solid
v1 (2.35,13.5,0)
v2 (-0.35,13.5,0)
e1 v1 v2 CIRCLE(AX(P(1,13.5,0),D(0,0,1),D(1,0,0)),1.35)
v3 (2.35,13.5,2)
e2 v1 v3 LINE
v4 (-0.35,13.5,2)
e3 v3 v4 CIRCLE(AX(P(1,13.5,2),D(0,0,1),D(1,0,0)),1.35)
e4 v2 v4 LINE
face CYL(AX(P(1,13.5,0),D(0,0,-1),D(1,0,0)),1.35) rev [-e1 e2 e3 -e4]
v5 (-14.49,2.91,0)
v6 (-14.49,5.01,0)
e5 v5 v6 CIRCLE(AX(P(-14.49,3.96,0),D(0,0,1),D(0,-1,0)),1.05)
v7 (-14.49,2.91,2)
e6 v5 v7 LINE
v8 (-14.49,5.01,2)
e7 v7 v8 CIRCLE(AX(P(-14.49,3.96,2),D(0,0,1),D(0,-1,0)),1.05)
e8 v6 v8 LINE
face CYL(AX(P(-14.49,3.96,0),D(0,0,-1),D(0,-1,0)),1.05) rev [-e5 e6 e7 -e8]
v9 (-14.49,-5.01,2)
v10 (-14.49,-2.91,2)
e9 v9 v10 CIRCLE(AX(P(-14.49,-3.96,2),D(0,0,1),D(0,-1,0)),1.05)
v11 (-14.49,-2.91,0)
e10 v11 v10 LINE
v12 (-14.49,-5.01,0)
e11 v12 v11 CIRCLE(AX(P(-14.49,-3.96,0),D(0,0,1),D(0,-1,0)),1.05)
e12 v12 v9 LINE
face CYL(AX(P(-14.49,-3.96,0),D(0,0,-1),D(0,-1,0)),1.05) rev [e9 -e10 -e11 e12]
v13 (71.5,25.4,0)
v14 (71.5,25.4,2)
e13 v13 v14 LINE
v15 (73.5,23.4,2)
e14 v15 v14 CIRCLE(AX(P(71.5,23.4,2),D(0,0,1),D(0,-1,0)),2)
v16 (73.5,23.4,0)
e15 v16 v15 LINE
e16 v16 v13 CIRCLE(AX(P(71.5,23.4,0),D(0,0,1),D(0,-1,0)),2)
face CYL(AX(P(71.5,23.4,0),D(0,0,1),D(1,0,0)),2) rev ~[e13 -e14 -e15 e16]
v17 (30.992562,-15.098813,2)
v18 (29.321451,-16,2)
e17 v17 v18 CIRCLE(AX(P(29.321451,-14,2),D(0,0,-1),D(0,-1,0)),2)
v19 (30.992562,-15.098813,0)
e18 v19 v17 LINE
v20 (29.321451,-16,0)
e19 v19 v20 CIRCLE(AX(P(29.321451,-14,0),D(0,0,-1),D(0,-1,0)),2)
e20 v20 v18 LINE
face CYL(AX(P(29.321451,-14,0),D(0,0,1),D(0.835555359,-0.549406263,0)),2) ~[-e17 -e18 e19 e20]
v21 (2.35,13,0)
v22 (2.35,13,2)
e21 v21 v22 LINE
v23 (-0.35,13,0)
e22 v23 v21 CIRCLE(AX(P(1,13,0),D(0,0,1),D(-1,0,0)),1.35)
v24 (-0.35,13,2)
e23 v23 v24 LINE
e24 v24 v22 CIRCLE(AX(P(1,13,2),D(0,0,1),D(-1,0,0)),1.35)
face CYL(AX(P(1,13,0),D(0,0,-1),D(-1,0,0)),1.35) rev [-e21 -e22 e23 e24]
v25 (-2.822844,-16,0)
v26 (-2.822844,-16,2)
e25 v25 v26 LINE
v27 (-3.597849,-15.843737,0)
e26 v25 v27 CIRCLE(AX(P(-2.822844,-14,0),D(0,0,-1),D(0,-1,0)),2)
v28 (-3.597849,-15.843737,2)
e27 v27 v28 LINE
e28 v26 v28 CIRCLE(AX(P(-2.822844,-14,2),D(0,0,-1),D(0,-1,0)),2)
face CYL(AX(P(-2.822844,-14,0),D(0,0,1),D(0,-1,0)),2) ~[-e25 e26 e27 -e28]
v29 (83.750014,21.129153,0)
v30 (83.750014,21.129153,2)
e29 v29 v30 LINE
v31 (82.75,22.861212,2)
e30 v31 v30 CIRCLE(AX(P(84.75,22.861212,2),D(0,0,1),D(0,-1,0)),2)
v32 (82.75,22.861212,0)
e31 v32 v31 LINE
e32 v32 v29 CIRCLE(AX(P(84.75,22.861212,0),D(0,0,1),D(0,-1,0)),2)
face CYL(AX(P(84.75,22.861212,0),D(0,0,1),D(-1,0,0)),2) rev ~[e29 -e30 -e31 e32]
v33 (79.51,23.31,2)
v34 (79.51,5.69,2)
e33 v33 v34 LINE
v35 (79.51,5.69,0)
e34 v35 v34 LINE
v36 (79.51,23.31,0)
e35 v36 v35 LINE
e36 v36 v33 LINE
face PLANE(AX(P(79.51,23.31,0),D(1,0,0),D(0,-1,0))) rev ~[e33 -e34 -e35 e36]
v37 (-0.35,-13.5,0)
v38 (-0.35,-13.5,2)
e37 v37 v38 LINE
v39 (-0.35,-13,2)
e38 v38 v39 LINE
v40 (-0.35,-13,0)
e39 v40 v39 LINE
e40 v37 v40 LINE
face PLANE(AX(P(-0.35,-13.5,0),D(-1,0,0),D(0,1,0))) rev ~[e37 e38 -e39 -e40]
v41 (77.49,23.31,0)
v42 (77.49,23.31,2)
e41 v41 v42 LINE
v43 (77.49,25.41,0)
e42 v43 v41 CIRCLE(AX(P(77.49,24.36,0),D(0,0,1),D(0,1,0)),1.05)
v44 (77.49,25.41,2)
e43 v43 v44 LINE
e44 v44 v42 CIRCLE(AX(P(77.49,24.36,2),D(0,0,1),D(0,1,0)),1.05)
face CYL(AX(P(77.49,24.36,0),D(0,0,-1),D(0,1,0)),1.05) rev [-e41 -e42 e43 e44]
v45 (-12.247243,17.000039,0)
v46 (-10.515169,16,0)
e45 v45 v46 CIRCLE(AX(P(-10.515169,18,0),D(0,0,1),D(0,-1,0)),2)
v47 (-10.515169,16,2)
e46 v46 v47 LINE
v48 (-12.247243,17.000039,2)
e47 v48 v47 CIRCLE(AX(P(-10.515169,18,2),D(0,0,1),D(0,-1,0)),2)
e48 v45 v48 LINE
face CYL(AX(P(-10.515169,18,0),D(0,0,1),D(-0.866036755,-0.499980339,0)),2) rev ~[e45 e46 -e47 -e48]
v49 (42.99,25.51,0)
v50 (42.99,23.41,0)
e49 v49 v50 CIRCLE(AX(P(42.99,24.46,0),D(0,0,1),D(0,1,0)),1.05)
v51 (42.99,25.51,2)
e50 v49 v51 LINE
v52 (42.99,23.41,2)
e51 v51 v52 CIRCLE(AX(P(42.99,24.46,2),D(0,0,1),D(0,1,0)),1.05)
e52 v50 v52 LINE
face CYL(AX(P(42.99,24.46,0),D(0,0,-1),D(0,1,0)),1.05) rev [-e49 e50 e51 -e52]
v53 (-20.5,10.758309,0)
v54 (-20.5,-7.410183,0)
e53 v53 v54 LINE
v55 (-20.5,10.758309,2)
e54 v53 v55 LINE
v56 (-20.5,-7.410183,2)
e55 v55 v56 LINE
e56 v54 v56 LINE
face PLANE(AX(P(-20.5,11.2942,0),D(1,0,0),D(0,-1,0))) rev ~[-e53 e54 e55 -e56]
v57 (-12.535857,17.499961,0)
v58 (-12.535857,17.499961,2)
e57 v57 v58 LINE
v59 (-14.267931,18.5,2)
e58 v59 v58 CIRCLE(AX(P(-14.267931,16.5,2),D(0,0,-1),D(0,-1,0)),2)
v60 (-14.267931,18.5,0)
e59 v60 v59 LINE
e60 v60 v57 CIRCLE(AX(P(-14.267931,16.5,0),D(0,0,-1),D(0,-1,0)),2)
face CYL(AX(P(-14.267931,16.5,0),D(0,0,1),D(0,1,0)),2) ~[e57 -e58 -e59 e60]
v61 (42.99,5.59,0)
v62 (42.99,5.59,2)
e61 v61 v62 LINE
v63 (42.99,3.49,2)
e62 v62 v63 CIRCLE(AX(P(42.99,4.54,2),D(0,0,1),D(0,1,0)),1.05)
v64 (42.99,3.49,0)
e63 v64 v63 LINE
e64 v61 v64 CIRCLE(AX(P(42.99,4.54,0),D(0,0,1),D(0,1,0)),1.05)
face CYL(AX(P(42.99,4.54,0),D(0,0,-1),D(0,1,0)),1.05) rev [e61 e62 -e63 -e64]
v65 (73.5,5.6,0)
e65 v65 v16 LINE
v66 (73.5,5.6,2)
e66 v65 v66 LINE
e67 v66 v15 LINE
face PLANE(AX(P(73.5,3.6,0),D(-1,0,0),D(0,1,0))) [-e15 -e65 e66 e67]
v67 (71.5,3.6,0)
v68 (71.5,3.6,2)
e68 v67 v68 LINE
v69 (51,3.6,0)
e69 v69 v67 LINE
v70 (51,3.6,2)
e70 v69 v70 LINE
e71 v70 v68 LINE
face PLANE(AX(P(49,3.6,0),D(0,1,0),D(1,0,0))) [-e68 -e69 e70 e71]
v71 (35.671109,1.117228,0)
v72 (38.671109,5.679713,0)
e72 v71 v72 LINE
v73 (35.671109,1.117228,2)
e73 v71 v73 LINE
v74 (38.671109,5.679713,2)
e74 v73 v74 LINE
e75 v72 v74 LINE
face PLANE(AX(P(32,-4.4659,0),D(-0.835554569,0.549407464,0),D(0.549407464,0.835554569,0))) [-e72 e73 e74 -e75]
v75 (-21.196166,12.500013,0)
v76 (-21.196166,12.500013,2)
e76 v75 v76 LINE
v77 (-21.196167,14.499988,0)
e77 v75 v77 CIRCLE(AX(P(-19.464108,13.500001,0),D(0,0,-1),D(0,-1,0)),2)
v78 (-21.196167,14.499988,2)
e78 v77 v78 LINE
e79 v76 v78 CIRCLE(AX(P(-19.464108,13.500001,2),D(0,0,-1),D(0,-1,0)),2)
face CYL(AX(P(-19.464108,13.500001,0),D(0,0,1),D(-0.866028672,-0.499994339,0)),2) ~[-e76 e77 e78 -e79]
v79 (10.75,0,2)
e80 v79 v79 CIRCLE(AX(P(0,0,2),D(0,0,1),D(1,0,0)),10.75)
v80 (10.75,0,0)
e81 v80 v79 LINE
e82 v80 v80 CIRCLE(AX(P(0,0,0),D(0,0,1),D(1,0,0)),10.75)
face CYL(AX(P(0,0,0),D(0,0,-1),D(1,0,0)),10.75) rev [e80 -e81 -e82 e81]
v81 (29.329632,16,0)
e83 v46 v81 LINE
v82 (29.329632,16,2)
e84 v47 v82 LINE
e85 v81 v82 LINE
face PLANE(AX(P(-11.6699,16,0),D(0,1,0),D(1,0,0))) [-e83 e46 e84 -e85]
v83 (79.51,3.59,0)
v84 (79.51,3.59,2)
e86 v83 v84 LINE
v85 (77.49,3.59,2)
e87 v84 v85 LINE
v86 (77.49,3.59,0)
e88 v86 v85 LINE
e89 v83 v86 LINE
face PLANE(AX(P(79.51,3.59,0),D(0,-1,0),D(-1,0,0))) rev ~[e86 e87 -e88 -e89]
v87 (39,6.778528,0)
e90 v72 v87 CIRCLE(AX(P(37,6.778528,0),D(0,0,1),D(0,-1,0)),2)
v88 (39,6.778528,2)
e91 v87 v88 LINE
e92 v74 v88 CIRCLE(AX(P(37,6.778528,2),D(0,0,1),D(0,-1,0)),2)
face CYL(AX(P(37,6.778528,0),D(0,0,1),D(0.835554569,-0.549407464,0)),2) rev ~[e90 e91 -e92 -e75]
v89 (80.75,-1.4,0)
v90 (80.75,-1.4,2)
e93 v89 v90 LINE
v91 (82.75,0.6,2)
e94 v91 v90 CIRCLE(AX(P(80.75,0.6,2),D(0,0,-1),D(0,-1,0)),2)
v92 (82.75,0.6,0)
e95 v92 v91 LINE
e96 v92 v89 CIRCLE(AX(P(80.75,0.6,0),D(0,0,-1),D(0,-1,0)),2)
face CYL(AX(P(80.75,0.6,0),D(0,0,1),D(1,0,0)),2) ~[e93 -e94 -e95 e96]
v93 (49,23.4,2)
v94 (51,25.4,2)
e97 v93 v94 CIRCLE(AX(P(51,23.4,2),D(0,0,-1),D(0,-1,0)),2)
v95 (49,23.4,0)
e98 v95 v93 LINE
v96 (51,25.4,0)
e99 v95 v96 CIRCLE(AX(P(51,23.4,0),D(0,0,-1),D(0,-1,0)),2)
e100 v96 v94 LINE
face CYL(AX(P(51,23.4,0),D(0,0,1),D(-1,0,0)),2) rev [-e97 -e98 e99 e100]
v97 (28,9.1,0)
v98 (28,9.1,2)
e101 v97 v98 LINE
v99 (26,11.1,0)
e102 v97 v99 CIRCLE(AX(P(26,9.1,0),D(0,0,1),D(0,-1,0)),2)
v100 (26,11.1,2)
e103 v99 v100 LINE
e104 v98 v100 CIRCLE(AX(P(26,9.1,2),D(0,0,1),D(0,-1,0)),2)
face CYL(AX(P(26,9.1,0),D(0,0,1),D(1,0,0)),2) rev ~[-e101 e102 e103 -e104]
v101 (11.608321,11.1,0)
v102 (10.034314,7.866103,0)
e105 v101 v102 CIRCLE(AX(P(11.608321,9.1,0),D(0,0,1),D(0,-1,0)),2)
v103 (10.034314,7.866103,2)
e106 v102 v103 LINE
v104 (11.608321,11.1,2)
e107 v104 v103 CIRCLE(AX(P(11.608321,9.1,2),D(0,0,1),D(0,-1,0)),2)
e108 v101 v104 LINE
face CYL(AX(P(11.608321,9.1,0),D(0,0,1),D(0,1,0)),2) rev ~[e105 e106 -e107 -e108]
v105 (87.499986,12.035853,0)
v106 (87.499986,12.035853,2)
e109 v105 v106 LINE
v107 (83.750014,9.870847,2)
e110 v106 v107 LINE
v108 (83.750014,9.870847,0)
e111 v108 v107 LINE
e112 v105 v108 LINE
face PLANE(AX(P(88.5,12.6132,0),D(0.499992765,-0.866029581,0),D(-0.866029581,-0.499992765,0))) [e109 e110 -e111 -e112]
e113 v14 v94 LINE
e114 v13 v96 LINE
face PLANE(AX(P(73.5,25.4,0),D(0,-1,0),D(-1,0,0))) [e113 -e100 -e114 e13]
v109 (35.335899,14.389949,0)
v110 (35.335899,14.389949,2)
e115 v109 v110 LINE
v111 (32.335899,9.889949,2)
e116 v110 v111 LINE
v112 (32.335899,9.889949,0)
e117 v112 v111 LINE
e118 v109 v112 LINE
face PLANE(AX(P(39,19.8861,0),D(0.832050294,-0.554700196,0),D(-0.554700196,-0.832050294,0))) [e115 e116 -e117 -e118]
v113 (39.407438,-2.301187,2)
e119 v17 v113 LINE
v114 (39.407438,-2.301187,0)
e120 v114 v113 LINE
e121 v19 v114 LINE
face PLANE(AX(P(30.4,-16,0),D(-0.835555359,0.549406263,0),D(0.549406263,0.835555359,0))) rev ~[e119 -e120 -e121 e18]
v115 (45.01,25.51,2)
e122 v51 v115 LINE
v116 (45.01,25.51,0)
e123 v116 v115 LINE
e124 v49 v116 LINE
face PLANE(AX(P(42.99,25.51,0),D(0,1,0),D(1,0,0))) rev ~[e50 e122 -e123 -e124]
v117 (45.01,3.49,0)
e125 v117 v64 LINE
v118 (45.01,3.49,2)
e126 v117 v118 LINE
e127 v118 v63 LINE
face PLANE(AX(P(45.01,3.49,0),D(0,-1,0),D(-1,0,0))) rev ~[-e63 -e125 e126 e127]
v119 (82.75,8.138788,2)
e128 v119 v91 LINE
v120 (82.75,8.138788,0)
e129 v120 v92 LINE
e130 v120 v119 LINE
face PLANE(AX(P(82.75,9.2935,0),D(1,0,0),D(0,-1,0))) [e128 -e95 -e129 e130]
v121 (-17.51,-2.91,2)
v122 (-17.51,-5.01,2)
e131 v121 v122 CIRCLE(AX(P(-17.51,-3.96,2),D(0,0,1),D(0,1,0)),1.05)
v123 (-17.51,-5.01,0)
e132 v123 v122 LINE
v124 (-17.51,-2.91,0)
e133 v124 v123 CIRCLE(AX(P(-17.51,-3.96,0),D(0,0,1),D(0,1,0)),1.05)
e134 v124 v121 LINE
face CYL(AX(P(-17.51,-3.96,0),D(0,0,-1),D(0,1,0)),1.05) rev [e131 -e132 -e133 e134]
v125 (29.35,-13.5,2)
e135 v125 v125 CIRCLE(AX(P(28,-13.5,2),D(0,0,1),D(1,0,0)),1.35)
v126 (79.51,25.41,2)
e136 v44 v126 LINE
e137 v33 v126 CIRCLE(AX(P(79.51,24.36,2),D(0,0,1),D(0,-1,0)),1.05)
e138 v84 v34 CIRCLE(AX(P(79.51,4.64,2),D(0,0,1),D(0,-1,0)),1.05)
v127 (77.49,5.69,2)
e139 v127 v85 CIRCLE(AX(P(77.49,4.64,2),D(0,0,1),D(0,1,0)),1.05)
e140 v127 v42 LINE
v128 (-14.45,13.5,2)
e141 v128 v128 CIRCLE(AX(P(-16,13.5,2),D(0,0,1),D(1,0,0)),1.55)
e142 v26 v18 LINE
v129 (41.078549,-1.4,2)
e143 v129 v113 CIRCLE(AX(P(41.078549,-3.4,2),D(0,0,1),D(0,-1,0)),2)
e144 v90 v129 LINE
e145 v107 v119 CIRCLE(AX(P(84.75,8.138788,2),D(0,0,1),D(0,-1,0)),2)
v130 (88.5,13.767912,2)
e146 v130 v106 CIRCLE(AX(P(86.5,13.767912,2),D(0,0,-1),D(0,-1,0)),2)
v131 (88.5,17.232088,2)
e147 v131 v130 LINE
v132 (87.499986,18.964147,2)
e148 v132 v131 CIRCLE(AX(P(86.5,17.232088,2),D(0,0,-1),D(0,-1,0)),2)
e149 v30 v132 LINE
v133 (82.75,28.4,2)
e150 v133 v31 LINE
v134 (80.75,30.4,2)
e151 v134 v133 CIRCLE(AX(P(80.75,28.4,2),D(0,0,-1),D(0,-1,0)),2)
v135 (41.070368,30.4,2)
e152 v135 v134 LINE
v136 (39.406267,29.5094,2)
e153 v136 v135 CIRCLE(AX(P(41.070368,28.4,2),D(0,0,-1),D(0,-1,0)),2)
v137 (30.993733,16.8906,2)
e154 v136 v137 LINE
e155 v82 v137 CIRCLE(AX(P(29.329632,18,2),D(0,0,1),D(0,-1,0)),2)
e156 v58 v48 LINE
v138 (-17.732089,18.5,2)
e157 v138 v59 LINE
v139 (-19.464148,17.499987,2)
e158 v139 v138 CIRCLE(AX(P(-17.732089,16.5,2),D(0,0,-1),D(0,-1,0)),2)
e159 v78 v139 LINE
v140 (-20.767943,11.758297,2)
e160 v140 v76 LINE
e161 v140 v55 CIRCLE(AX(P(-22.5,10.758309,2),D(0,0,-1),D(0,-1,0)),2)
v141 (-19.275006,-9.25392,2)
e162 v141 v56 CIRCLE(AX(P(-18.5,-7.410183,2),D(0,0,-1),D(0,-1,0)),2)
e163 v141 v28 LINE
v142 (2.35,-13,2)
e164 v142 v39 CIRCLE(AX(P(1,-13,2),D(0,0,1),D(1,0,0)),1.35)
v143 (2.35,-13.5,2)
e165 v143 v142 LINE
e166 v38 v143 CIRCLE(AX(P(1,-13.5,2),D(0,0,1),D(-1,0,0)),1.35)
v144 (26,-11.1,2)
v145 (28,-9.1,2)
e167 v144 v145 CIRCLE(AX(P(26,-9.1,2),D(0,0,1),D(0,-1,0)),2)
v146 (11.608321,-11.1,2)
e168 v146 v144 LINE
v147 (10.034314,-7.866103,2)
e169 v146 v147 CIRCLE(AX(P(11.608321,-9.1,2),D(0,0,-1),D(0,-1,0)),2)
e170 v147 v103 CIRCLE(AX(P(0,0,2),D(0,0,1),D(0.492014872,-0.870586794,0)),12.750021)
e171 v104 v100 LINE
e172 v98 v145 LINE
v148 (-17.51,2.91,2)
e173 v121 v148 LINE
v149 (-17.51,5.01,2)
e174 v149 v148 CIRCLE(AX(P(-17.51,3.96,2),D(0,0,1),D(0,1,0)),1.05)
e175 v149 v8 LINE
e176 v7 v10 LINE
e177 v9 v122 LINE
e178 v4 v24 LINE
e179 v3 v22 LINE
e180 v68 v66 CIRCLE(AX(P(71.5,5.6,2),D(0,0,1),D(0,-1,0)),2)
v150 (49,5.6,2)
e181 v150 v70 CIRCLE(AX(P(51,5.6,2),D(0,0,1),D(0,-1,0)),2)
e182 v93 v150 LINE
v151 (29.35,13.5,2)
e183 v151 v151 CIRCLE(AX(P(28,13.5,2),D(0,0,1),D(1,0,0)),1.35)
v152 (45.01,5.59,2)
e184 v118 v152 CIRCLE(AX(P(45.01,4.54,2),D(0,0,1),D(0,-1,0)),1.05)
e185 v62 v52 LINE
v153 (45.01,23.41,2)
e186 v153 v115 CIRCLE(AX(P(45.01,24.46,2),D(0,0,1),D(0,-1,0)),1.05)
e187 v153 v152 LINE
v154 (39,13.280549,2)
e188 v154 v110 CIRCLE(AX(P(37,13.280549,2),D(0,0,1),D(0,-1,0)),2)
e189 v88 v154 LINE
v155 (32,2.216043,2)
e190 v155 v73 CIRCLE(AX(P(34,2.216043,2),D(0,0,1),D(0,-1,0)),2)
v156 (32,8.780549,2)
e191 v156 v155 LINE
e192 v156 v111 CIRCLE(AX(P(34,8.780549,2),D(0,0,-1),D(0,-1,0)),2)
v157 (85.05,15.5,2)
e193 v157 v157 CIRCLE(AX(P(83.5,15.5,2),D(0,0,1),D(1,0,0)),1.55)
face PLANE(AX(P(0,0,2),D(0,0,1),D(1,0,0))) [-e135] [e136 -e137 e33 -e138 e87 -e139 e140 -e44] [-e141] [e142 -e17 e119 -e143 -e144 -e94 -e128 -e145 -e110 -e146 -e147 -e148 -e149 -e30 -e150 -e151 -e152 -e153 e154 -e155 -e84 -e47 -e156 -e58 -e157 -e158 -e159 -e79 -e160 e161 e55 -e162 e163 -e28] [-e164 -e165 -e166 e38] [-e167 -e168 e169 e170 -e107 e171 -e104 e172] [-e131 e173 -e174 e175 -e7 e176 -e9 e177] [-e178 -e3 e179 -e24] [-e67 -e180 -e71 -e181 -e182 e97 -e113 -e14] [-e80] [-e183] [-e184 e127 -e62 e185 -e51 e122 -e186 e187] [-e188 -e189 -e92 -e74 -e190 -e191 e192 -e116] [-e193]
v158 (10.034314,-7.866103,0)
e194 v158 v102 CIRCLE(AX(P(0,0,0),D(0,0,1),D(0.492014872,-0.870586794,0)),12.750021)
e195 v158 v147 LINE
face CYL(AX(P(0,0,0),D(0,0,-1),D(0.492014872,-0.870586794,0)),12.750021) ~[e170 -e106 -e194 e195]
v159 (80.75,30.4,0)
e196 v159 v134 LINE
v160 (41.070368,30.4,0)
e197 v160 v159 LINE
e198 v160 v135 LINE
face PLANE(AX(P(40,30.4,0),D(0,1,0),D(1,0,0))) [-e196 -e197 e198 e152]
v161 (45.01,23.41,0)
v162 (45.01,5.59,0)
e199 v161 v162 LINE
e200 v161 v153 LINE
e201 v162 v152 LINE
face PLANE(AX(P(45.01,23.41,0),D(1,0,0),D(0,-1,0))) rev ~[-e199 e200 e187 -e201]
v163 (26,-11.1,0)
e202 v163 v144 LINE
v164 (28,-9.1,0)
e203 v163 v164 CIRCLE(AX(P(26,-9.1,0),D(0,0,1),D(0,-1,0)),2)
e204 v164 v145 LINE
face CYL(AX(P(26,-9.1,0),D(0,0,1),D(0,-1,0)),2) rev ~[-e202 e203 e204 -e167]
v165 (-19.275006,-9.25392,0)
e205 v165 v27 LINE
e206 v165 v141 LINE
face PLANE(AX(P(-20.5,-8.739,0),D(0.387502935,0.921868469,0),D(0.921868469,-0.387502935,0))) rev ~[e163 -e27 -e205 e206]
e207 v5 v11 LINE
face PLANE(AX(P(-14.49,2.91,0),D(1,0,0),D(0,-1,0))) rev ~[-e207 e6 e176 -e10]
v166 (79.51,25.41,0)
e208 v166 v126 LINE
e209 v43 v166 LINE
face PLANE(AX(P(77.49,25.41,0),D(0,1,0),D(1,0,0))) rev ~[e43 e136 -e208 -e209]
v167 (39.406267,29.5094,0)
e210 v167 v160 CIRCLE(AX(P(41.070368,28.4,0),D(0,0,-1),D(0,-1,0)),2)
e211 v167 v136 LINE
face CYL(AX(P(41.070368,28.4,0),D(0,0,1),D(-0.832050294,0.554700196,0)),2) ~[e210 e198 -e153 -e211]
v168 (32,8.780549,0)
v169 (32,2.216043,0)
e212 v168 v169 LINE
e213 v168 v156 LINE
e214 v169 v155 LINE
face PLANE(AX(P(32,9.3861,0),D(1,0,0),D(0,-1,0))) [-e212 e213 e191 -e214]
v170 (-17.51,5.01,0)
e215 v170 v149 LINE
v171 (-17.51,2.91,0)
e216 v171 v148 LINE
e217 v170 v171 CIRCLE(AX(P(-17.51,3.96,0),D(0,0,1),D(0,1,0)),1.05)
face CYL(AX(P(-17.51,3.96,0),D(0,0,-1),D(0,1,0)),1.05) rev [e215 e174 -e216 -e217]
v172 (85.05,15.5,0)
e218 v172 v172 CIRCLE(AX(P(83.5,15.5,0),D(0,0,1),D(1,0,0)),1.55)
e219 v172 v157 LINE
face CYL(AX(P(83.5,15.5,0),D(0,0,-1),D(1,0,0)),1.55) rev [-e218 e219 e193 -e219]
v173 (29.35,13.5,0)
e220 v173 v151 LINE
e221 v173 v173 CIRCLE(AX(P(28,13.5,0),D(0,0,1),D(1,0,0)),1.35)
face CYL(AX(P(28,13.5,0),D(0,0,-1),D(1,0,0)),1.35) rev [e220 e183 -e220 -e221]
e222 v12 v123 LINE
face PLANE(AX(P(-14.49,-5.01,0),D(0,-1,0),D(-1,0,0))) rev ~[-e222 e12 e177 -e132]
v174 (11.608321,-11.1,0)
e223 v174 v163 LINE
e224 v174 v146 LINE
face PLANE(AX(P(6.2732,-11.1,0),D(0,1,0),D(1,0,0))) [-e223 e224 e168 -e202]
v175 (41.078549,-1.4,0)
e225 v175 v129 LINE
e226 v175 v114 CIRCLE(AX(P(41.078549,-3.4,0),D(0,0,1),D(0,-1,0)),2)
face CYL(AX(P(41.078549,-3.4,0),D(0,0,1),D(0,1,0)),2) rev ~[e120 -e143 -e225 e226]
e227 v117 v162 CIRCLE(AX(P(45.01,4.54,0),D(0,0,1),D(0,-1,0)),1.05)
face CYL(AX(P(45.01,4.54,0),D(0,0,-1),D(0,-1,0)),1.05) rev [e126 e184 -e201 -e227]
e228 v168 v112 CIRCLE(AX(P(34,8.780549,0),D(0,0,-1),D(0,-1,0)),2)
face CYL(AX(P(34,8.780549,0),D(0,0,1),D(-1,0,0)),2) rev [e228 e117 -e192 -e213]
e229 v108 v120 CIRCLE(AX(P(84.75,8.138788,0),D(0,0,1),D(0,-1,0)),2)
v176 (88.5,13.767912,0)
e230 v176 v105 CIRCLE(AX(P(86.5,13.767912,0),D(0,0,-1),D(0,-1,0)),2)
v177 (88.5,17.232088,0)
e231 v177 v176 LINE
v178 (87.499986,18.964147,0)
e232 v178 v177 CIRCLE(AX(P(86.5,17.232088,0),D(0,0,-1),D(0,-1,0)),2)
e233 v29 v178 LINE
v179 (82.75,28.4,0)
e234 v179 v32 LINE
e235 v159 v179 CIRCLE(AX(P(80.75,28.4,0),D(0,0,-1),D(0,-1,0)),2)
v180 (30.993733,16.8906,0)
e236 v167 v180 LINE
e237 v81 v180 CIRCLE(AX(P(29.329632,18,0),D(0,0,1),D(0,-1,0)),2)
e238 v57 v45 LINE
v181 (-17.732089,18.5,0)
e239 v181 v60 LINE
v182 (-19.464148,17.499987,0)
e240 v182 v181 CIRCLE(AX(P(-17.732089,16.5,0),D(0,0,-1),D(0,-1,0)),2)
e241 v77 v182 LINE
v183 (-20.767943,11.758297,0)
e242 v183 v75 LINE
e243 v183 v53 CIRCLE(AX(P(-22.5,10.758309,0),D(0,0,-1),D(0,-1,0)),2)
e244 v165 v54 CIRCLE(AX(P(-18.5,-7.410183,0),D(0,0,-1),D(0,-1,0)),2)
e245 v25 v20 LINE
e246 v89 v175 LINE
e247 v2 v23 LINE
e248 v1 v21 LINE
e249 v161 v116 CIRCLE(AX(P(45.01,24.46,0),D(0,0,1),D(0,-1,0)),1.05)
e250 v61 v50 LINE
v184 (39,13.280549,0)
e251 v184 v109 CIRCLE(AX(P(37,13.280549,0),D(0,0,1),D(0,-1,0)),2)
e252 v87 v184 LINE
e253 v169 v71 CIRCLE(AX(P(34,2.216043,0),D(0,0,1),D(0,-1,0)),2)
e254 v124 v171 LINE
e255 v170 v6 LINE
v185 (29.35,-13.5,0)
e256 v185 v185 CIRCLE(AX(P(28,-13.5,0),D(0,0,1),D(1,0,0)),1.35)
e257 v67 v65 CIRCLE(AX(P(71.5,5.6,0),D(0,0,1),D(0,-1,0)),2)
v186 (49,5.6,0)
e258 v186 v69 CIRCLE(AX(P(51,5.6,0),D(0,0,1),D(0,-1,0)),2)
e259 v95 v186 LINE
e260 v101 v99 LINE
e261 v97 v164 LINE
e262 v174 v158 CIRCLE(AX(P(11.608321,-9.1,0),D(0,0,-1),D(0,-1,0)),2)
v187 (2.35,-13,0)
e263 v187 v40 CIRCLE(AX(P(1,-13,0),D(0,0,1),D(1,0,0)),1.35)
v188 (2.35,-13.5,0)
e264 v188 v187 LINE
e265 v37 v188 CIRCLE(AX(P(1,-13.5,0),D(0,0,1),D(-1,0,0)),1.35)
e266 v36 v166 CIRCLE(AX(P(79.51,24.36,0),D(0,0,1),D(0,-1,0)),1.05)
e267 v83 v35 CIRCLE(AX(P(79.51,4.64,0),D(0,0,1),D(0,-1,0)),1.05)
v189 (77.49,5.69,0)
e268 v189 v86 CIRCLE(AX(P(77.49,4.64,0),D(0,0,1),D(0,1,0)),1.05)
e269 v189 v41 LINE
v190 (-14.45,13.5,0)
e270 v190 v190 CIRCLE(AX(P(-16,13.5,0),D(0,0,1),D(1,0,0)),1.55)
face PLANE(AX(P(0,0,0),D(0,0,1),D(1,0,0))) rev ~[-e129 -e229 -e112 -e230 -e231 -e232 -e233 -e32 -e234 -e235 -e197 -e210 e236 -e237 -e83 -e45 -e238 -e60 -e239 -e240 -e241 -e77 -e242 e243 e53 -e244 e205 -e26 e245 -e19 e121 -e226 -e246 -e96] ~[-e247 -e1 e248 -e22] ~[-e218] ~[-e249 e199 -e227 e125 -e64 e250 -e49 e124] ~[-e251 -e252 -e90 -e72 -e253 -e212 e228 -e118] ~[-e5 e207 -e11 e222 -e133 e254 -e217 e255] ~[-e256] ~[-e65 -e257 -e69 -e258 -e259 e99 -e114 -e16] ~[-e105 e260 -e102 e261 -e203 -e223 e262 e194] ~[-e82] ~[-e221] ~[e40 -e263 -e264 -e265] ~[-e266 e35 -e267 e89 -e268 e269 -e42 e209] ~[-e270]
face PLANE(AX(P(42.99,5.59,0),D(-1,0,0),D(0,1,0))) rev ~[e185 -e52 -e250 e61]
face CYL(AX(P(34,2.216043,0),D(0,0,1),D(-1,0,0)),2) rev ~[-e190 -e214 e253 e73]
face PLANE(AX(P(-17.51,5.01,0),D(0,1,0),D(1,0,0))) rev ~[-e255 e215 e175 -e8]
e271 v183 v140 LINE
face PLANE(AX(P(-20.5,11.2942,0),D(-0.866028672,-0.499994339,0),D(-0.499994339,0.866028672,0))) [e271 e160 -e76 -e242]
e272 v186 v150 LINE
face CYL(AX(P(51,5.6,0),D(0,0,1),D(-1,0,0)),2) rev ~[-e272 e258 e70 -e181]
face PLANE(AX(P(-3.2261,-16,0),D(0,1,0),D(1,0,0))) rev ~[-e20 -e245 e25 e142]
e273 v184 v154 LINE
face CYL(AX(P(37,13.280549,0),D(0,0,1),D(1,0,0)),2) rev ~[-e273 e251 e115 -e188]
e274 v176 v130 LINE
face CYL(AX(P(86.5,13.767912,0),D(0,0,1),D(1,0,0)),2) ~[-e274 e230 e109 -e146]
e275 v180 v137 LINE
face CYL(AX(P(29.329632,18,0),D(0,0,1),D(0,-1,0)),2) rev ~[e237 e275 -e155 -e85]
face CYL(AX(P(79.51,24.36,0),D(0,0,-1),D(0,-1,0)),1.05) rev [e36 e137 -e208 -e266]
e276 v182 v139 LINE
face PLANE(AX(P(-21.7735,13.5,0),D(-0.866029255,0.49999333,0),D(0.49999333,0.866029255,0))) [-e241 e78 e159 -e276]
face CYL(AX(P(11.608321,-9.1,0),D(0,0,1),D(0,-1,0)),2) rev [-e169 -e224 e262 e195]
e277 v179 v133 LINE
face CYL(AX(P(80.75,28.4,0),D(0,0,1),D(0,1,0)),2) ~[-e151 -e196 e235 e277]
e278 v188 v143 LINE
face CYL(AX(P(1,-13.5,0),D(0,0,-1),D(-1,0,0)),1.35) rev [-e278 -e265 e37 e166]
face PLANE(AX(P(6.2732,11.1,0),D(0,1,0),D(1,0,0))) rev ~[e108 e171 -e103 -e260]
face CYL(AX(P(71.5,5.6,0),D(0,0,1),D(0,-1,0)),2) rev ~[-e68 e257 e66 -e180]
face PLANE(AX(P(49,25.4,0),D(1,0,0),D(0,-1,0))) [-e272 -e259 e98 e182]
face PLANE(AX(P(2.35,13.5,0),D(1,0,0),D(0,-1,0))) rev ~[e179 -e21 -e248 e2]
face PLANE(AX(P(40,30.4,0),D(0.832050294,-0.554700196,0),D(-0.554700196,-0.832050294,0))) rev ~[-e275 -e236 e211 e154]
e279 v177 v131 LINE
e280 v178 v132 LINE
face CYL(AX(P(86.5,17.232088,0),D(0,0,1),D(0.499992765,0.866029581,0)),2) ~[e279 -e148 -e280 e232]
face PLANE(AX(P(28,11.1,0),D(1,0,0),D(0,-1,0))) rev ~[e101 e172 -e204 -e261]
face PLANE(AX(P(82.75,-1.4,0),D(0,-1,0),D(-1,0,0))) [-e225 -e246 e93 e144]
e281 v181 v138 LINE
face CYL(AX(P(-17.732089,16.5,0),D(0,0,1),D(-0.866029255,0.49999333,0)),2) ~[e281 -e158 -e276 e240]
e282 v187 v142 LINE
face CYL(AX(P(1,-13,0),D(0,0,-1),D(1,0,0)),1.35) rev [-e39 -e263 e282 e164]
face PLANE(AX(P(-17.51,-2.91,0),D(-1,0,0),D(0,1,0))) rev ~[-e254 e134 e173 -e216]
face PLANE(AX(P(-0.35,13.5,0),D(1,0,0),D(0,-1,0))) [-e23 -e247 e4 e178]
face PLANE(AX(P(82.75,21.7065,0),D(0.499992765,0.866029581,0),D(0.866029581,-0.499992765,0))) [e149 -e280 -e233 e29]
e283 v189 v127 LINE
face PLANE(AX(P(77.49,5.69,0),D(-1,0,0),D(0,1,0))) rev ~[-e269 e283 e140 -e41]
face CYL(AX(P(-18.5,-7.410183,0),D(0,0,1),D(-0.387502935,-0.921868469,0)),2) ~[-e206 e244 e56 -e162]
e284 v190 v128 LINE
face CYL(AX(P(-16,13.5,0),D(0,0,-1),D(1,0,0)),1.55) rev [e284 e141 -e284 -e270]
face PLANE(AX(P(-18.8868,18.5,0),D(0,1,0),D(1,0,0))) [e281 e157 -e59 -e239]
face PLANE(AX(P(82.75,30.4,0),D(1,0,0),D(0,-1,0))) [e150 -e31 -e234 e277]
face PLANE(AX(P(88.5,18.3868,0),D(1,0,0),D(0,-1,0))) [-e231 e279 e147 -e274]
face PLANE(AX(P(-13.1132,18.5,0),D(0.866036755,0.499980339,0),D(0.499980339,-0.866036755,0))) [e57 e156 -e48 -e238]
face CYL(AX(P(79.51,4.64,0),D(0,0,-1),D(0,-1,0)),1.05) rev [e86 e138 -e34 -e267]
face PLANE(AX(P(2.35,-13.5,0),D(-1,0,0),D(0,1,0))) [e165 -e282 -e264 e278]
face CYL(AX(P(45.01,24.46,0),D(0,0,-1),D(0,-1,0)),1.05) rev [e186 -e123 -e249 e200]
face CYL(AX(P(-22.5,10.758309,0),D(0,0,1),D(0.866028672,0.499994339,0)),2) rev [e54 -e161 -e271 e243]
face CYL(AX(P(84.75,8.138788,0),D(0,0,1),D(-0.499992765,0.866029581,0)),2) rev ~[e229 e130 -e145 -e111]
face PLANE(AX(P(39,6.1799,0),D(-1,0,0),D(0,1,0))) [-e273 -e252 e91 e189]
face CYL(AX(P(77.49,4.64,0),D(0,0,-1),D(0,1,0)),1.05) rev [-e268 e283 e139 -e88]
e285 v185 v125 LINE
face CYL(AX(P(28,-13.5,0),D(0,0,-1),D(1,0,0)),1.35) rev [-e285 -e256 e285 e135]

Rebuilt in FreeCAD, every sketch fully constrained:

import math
import FreeCAD as App
import Part
import Sketcher

V = App.Vector
Q = App.Units.Quantity


def edges_at(feature, points):
    """Names of the edges that pass closest to the given points."""
    edges = feature.Shape.Edges
    near = lambda p: min(range(len(edges)), key=lambda i: edges[i].distToShape(Part.Vertex(*p))[0])
    return sorted({f"Edge{near(p) + 1}" for p in points})


def add_polygon(sketch, points):
    """Adds a closed chain of lines whose ends are joined by coincident constraints."""
    first, n = sketch.GeometryCount, len(points)
    for a, b in zip(points, points[1:] + points[:1]):
        sketch.addGeometry(Part.LineSegment(App.Vector(*a, 0), App.Vector(*b, 0)), False)
    for i in range(n):
        sketch.addConstraint(Sketcher.Constraint("Coincident", first + i, 2, first + (i + 1) % n, 1))

doc = App.newDocument("Part")
params = doc.addObject("Spreadsheet::Sheet", "Params")
for row, (alias, value) in enumerate([
    ("sketch1_diameter", "2.7 mm"),
    ("sketch1_diameter2", "3.1 mm"),
    ("sketch1_radius", "1.05 mm"),
    ("sketch1_height", "0.5 mm"),
    ("sketch1_height2", "21.8 mm"),
    ("pad1_length", "2 mm"),
    ("fillet_radius", "2 mm"),
    ("fillet2_radius", "2 mm"),
], start=1):
    params.set(f"A{row}", alias)
    params.set(f"B{row}", "=" + value)
    params.setAlias(f"B{row}", alias)

body = doc.addObject("PartDesign::Body", "Body")

sketch1 = body.newObject("Sketcher::SketchObject", "Sketch")
sketch1.AttachmentSupport = (doc.getObject("XY_Plane"), [""])
sketch1.MapMode = "FlatFace"
add_polygon(sketch1, [(-21.8, 13.5), (-20.5, 11.3), (-20.5, -8.7), (-3.2, -16), (30.4, -16), (40, -1.4), (82.8, -1.4), (82.8, 9.3), (88.5, 12.6), (88.5, 18.4), (82.8, 21.7), (82.8, 30.4), (40, 30.4), (30.4, 16), (-11.7, 16), (-13.1, 18.5), (-18.9, 18.5)])
sketch1.addGeometry(Part.ArcOfCircle(Part.Circle(V(1, -13, 0), V(0, 0, 1), 1.4), math.radians(0), math.radians(180)), False)
sketch1.addGeometry(Part.LineSegment(V(2.4, -13, 0), V(2.4, -13.5, 0)), False)
sketch1.addGeometry(Part.ArcOfCircle(Part.Circle(V(1, -13.5, 0), V(0, 0, 1), 1.4), math.radians(180), math.radians(360)), False)
sketch1.addGeometry(Part.LineSegment(V(-0.3, -13.5, 0), V(-0.3, -13, 0)), False)
sketch1.addGeometry(Part.Circle(V(28, -13.5, 0), V(0, 0, 1), 1.4), False)
sketch1.addGeometry(Part.ArcOfCircle(Part.Circle(V(-17.5, 4, 0), V(0, 0, 1), 1), math.radians(90), math.radians(270)), False)
sketch1.addGeometry(Part.LineSegment(V(-17.5, 5, 0), V(-14.5, 5, 0)), False)
sketch1.addGeometry(Part.ArcOfCircle(Part.Circle(V(-14.5, 4, 0), V(0, 0, 1), 1), math.radians(-90), math.radians(90)), False)
sketch1.addGeometry(Part.LineSegment(V(-14.5, 2.9, 0), V(-14.5, -2.9, 0)), False)
sketch1.addGeometry(Part.ArcOfCircle(Part.Circle(V(-14.5, -4, 0), V(0, 0, 1), 1), math.radians(-90), math.radians(90)), False)
sketch1.addGeometry(Part.LineSegment(V(-14.5, -5, 0), V(-17.5, -5, 0)), False)
sketch1.addGeometry(Part.ArcOfCircle(Part.Circle(V(-17.5, -4, 0), V(0, 0, 1), 1), math.radians(90), math.radians(270)), False)
sketch1.addGeometry(Part.LineSegment(V(-17.5, -2.9, 0), V(-17.5, 2.9, 0)), False)
sketch1.addGeometry(Part.Circle(V(0, 0, 0), V(0, 0, 1), 10.8), False)
sketch1.addGeometry(Part.LineSegment(V(28, -11.1, 0), V(6.3, -11.1, 0)), False)
sketch1.addGeometry(Part.ArcOfCircle(Part.Circle(V(0, 0, 0), V(0, 0, 1), 12.8), math.radians(-61), math.radians(61)), False)
sketch1.addGeometry(Part.LineSegment(V(6.3, 11.1, 0), V(28, 11.1, 0)), False)
sketch1.addGeometry(Part.LineSegment(V(28, 11.1, 0), V(28, -11.1, 0)), False)
sketch1.addGeometry(Part.Circle(V(-16, 13.5, 0), V(0, 0, 1), 1.6), False)
sketch1.addGeometry(Part.ArcOfCircle(Part.Circle(V(1, 13, 0), V(0, 0, 1), 1.4), math.radians(180), math.radians(360)), False)
sketch1.addGeometry(Part.LineSegment(V(-0.3, 13, 0), V(-0.3, 13.5, 0)), False)
sketch1.addGeometry(Part.ArcOfCircle(Part.Circle(V(1, 13.5, 0), V(0, 0, 1), 1.4), math.radians(0), math.radians(180)), False)
sketch1.addGeometry(Part.LineSegment(V(2.4, 13.5, 0), V(2.4, 13, 0)), False)
sketch1.addGeometry(Part.Circle(V(28, 13.5, 0), V(0, 0, 1), 1.4), False)
add_polygon(sketch1, [(32, -4.5), (32, 9.4), (39, 19.9), (39, 6.2)])
sketch1.addGeometry(Part.ArcOfCircle(Part.Circle(V(43, 24.5, 0), V(0, 0, 1), 1.1), math.radians(90), math.radians(270)), False)
sketch1.addGeometry(Part.LineSegment(V(43, 25.5, 0), V(45, 25.5, 0)), False)
sketch1.addGeometry(Part.ArcOfCircle(Part.Circle(V(45, 24.5, 0), V(0, 0, 1), 1.1), math.radians(-90), math.radians(90)), False)
sketch1.addGeometry(Part.LineSegment(V(45, 23.4, 0), V(45, 5.6, 0)), False)
sketch1.addGeometry(Part.ArcOfCircle(Part.Circle(V(45, 4.5, 0), V(0, 0, 1), 1), math.radians(-90), math.radians(90)), False)
sketch1.addGeometry(Part.LineSegment(V(45, 3.5, 0), V(43, 3.5, 0)), False)
sketch1.addGeometry(Part.ArcOfCircle(Part.Circle(V(43, 4.5, 0), V(0, 0, 1), 1), math.radians(90), math.radians(270)), False)
sketch1.addGeometry(Part.LineSegment(V(43, 5.6, 0), V(43, 23.4, 0)), False)
add_polygon(sketch1, [(49, 3.6), (49, 25.4), (73.5, 25.4), (73.5, 3.6)])
sketch1.addGeometry(Part.ArcOfCircle(Part.Circle(V(77.5, 24.4, 0), V(0, 0, 1), 1.1), math.radians(90), math.radians(270)), False)
sketch1.addGeometry(Part.LineSegment(V(77.5, 25.4, 0), V(79.5, 25.4, 0)), False)
sketch1.addGeometry(Part.ArcOfCircle(Part.Circle(V(79.5, 24.4, 0), V(0, 0, 1), 1.1), math.radians(-90), math.radians(90)), False)
sketch1.addGeometry(Part.LineSegment(V(79.5, 23.3, 0), V(79.5, 5.7, 0)), False)
sketch1.addGeometry(Part.ArcOfCircle(Part.Circle(V(79.5, 4.6, 0), V(0, 0, 1), 1), math.radians(-90), math.radians(90)), False)
sketch1.addGeometry(Part.LineSegment(V(79.5, 3.6, 0), V(77.5, 3.6, 0)), False)
sketch1.addGeometry(Part.ArcOfCircle(Part.Circle(V(77.5, 4.6, 0), V(0, 0, 1), 1.1), math.radians(90), math.radians(270)), False)
sketch1.addGeometry(Part.LineSegment(V(77.5, 5.7, 0), V(77.5, 23.3, 0)), False)
sketch1.addGeometry(Part.Circle(V(83.5, 15.5, 0), V(0, 0, 1), 1.6), False)
sketch1.addConstraint(Sketcher.Constraint("Tangent", 17, 1, 18, 1))
sketch1.addConstraint(Sketcher.Constraint("Tangent", 18, 2, 19, 2))
sketch1.addConstraint(Sketcher.Constraint("Tangent", 19, 1, 20, 1))
sketch1.addConstraint(Sketcher.Constraint("Tangent", 20, 2, 17, 2))
sketch1.addConstraint(Sketcher.Constraint("Tangent", 22, 1, 23, 1))
sketch1.addConstraint(Sketcher.Constraint("Tangent", 23, 2, 24, 2))
sketch1.addConstraint(Sketcher.Constraint("Coincident", 24, 1, 25, 1))
sketch1.addConstraint(Sketcher.Constraint("Coincident", 25, 2, 26, 2))
sketch1.addConstraint(Sketcher.Constraint("Tangent", 26, 1, 27, 1))
sketch1.addConstraint(Sketcher.Constraint("Tangent", 27, 2, 28, 2))
sketch1.addConstraint(Sketcher.Constraint("Coincident", 28, 1, 29, 1))
sketch1.addConstraint(Sketcher.Constraint("Coincident", 29, 2, 22, 2))
sketch1.addConstraint(Sketcher.Constraint("Coincident", 31, 2, 32, 1))
sketch1.addConstraint(Sketcher.Constraint("Coincident", 32, 2, 33, 1))
sketch1.addConstraint(Sketcher.Constraint("Coincident", 33, 2, 34, 1))
sketch1.addConstraint(Sketcher.Constraint("Coincident", 34, 2, 31, 1))
sketch1.addConstraint(Sketcher.Constraint("Tangent", 36, 1, 37, 1))
sketch1.addConstraint(Sketcher.Constraint("Tangent", 37, 2, 38, 2))
sketch1.addConstraint(Sketcher.Constraint("Tangent", 38, 1, 39, 1))
sketch1.addConstraint(Sketcher.Constraint("Tangent", 39, 2, 36, 2))
sketch1.addConstraint(Sketcher.Constraint("Tangent", 45, 1, 46, 1))
sketch1.addConstraint(Sketcher.Constraint("Tangent", 46, 2, 47, 2))
sketch1.addConstraint(Sketcher.Constraint("Coincident", 47, 1, 48, 1))
sketch1.addConstraint(Sketcher.Constraint("Coincident", 48, 2, 49, 2))
sketch1.addConstraint(Sketcher.Constraint("Tangent", 49, 1, 50, 1))
sketch1.addConstraint(Sketcher.Constraint("Tangent", 50, 2, 51, 2))
sketch1.addConstraint(Sketcher.Constraint("Coincident", 51, 1, 52, 1))
sketch1.addConstraint(Sketcher.Constraint("Coincident", 52, 2, 45, 2))
sketch1.addConstraint(Sketcher.Constraint("Tangent", 57, 1, 58, 1))
sketch1.addConstraint(Sketcher.Constraint("Tangent", 58, 2, 59, 2))
sketch1.addConstraint(Sketcher.Constraint("Coincident", 59, 1, 60, 1))
sketch1.addConstraint(Sketcher.Constraint("Coincident", 60, 2, 61, 2))
sketch1.addConstraint(Sketcher.Constraint("Tangent", 61, 1, 62, 1))
sketch1.addConstraint(Sketcher.Constraint("Tangent", 62, 2, 63, 2))
sketch1.addConstraint(Sketcher.Constraint("Coincident", 63, 1, 64, 1))
sketch1.addConstraint(Sketcher.Constraint("Coincident", 64, 2, 57, 2))
sketch1.addConstraint(Sketcher.Constraint("Vertical", 1))
sketch1.addConstraint(Sketcher.Constraint("Horizontal", 3))
sketch1.addConstraint(Sketcher.Constraint("Horizontal", 5))
sketch1.addConstraint(Sketcher.Constraint("Vertical", 6))
sketch1.addConstraint(Sketcher.Constraint("Vertical", 8))
sketch1.addConstraint(Sketcher.Constraint("Vertical", 10))
sketch1.addConstraint(Sketcher.Constraint("Horizontal", 11))
sketch1.addConstraint(Sketcher.Constraint("Horizontal", 13))
sketch1.addConstraint(Sketcher.Constraint("Horizontal", 15))
sketch1.addConstraint(Sketcher.Constraint("Vertical", 18))
sketch1.addConstraint(Sketcher.Constraint("Vertical", 20))
sketch1.addConstraint(Sketcher.Constraint("Horizontal", 23))
sketch1.addConstraint(Sketcher.Constraint("Vertical", 25))
sketch1.addConstraint(Sketcher.Constraint("Horizontal", 27))
sketch1.addConstraint(Sketcher.Constraint("Vertical", 29))
sketch1.addConstraint(Sketcher.Constraint("Horizontal", 31))
sketch1.addConstraint(Sketcher.Constraint("Horizontal", 33))
sketch1.addConstraint(Sketcher.Constraint("Vertical", 34))
sketch1.addConstraint(Sketcher.Constraint("Vertical", 37))
sketch1.addConstraint(Sketcher.Constraint("Vertical", 39))
sketch1.addConstraint(Sketcher.Constraint("Vertical", 41))
sketch1.addConstraint(Sketcher.Constraint("Vertical", 43))
sketch1.addConstraint(Sketcher.Constraint("Horizontal", 46))
sketch1.addConstraint(Sketcher.Constraint("Vertical", 48))
sketch1.addConstraint(Sketcher.Constraint("Horizontal", 50))
sketch1.addConstraint(Sketcher.Constraint("Vertical", 52))
sketch1.addConstraint(Sketcher.Constraint("Vertical", 53))
sketch1.addConstraint(Sketcher.Constraint("Horizontal", 54))
sketch1.addConstraint(Sketcher.Constraint("Vertical", 55))
sketch1.addConstraint(Sketcher.Constraint("Horizontal", 56))
sketch1.addConstraint(Sketcher.Constraint("Horizontal", 58))
sketch1.addConstraint(Sketcher.Constraint("Vertical", 60))
sketch1.addConstraint(Sketcher.Constraint("Horizontal", 62))
sketch1.addConstraint(Sketcher.Constraint("Vertical", 64))
sketch1.addConstraint(Sketcher.Constraint("Coincident", 30, 3, -1, 1))
sketch1.addConstraint(Sketcher.Constraint("Coincident", 32, 3, -1, 1))
sketch1.addConstraint(Sketcher.Constraint("Equal", 19, 21))
sketch1.addConstraint(Sketcher.Constraint("Equal", 22, 24))
sketch1.addConstraint(Sketcher.Constraint("Equal", 24, 26))
sketch1.addConstraint(Sketcher.Constraint("Equal", 26, 28))
sketch1.addConstraint(Sketcher.Constraint("Equal", 21, 36))
sketch1.addConstraint(Sketcher.Constraint("Equal", 38, 40))
sketch1.addConstraint(Sketcher.Constraint("Equal", 28, 45))
sketch1.addConstraint(Sketcher.Constraint("Equal", 45, 47))
sketch1.addConstraint(Sketcher.Constraint("Equal", 47, 49))
sketch1.addConstraint(Sketcher.Constraint("Equal", 49, 51))
sketch1.addConstraint(Sketcher.Constraint("Equal", 51, 57))
sketch1.addConstraint(Sketcher.Constraint("Equal", 57, 59))
sketch1.addConstraint(Sketcher.Constraint("Equal", 59, 61))
sketch1.addConstraint(Sketcher.Constraint("Equal", 61, 63))
sketch1.addConstraint(Sketcher.Constraint("Equal", 35, 65))
sketch1.addConstraint(Sketcher.Constraint("Symmetric", 24, 3, 26, 3, -1))
sketch1.addConstraint(Sketcher.Constraint("Symmetric", 17, 3, 36, 3, -1))
sketch1.addConstraint(Sketcher.Constraint("Symmetric", 21, 3, 40, 3, -1))
sketch1.addConstraint(Sketcher.Constraint("Symmetric", 3, 2, 12, 2, -1))
sketch1.addConstraint(Sketcher.Constraint("Perpendicular", 0, 7))
sketch1.addConstraint(Sketcher.Constraint("Perpendicular", 7, 14))
sketch1.addConstraint(Sketcher.Constraint("Perpendicular", 9, 16))
sketch1.addConstraint(Sketcher.Constraint("Parallel", 12, 42))
sketch1.addConstraint(Sketcher.Constraint("Parallel", 4, 44))
sketch1.addConstraint(Sketcher.Constraint("Horizontal", 19, 3, 21, 3))
sketch1.addConstraint(Sketcher.Constraint("Horizontal", 35, 3, 38, 3))
sketch1.addConstraint(Sketcher.Constraint("Horizontal", 38, 3, 40, 3))
sketch1.addConstraint(Sketcher.Constraint("Horizontal", 40, 3, 16, 2))
sketch1.addConstraint(Sketcher.Constraint("Vertical", 22, 3, 28, 3))
sketch1.addConstraint(Sketcher.Constraint("Vertical", 47, 3, 49, 3))
sketch1.addConstraint(Sketcher.Constraint("Vertical", 45, 3, 51, 3))
sketch1.addConstraint(Sketcher.Constraint("Vertical", 59, 3, 61, 3))
sketch1.addConstraint(Sketcher.Constraint("Vertical", 57, 3, 63, 3))
sketch1.addConstraint(Sketcher.Constraint("Vertical", 6, 2, 9, 2))
sketch1.addConstraint(Sketcher.Constraint("Vertical", 4, 2, 11, 2))
sketch1.addConstraint(Sketcher.Constraint("Vertical", 23, 2, 24, 1))
sketch1.addConstraint(Sketcher.Constraint("Vertical", 27, 2, 28, 1))
sketch1.addConstraint(Sketcher.Constraint("Vertical", 31, 2, 32, 2))
sketch1.addConstraint(Sketcher.Constraint("Vertical", 40, 3, 33, 2))
sketch1.addConstraint(Sketcher.Constraint("Vertical", 46, 2, 47, 1))
sketch1.addConstraint(Sketcher.Constraint("Vertical", 50, 2, 51, 1))
sketch1.addConstraint(Sketcher.Constraint("Vertical", 58, 2, 59, 1))
sketch1.addConstraint(Sketcher.Constraint("Vertical", 62, 2, 63, 1))
sketch1.addConstraint(Sketcher.Constraint("Equal", 50, 58))
sketch1.addConstraint(Sketcher.Constraint("Equal", 15, 8))
sketch1.addConstraint(Sketcher.Constraint("Equal", 7, 9))
sketch1.addConstraint(Sketcher.Constraint("Diameter", 21, Q("2.7 mm")))
sketch1.addConstraint(Sketcher.Constraint("Diameter", 35, Q("3.1 mm")))
sketch1.addConstraint(Sketcher.Constraint("Radius", 22, Q("1.05 mm")))
sketch1.addConstraint(Sketcher.Constraint("DistanceY", 18, 2, 18, 1, Q("0.5 mm")))
sketch1.addConstraint(Sketcher.Constraint("DistanceY", 53, 1, 53, 2, Q("21.8 mm")))
sketch1.addConstraint(Sketcher.Constraint("DistanceX", -1, 1, 17, 3, Q("1 mm")))
sketch1.addConstraint(Sketcher.Constraint("DistanceX", 35, 3, -1, 1, Q("16 mm")))
sketch1.addConstraint(Sketcher.Constraint("DistanceY", 2, 2, -1, 1, Q("16 mm")))
sketch1.addConstraint(Sketcher.Constraint("Diameter", 30, Q("21.5 mm")))
sketch1.addConstraint(Sketcher.Constraint("Angle", 0, Q("-60.0004 deg")))
sketch1.addConstraint(Sketcher.Constraint("Radius", 32, Q("12.75 mm")))
sketch1.addConstraint(Sketcher.Constraint("DistanceX", 54, 1, 54, 2, Q("24.5 mm")))
sketch1.addConstraint(Sketcher.Constraint("DistanceY", 34, 2, 34, 1, Q("22.2 mm")))
sketch1.addConstraint(Sketcher.Constraint("DistanceY", 17, 3, -1, 1, Q("13 mm")))
sketch1.addConstraint(Sketcher.Constraint("DistanceX", -1, 1, 21, 3, Q("28 mm")))
sketch1.addConstraint(Sketcher.Constraint("DistanceX", -1, 1, 4, 2, Q("40 mm")))
sketch1.addConstraint(Sketcher.Constraint("DistanceX", -1, 1, 41, 2, Q("32 mm")))
sketch1.addConstraint(Sketcher.Constraint("DistanceX", -1, 1, 42, 2, Q("39 mm")))
sketch1.addConstraint(Sketcher.Constraint("DistanceX", -1, 1, 53, 2, Q("49 mm")))
sketch1.addConstraint(Sketcher.Constraint("Angle", 2, Q("-22.7992 deg")))
sketch1.addConstraint(Sketcher.Constraint("DistanceX", 5, 1, 5, 2, Q("42.75 mm")))
sketch1.addConstraint(Sketcher.Constraint("DistanceX", 13, 2, 13, 1, Q("42.07 mm")))
sketch1.addConstraint(Sketcher.Constraint("DistanceX", 23, 1, 23, 2, Q("3.02 mm")))
sketch1.addConstraint(Sketcher.Constraint("DistanceX", 46, 1, 46, 2, Q("2.02 mm")))
sketch1.addConstraint(Sketcher.Constraint("DistanceY", 25, 2, 25, 1, Q("5.82 mm")))
sketch1.addConstraint(Sketcher.Constraint("DistanceY", 48, 2, 48, 1, Q("17.82 mm")))
sketch1.addConstraint(Sketcher.Constraint("DistanceY", 60, 2, 60, 1, Q("17.62 mm")))
sketch1.addConstraint(Sketcher.Constraint("DistanceX", -1, 1, 65, 3, Q("83.5 mm")))
sketch1.addConstraint(Sketcher.Constraint("DistanceY", -1, 1, 65, 3, Q("15.5 mm")))
sketch1.addConstraint(Sketcher.Constraint("DistanceX", 0, 2, -1, 1, Q("20.5 mm")))
sketch1.addConstraint(Sketcher.Constraint("DistanceX", -1, 1, 3, 2, Q("30.4 mm")))
sketch1.addConstraint(Sketcher.Constraint("DistanceY", 4, 2, -1, 1, Q("1.4 mm")))
sketch1.addConstraint(Sketcher.Constraint("DistanceX", -1, 1, 7, 2, Q("88.5 mm")))
sketch1.addConstraint(Sketcher.Constraint("DistanceY", -1, 1, 10, 2, Q("30.4 mm")))
sketch1.addConstraint(Sketcher.Constraint("DistanceY", -1, 1, 14, 2, Q("18.5 mm")))
sketch1.addConstraint(Sketcher.Constraint("DistanceY", -1, 1, 53, 2, Q("25.4 mm")))
sketch1.addConstraint(Sketcher.Constraint("DistanceX", 3, 1, 3, 2, Q("33.626 mm")))
sketch1.addConstraint(Sketcher.Constraint("DistanceY", 41, 1, 41, 2, Q("13.852 mm")))
sketch1.addConstraint(Sketcher.Constraint("DistanceX", 22, 3, -1, 1, Q("17.51 mm")))
sketch1.addConstraint(Sketcher.Constraint("DistanceX", -1, 1, 45, 3, Q("42.99 mm")))
sketch1.addConstraint(Sketcher.Constraint("DistanceY", -1, 1, 45, 3, Q("24.46 mm")))
sketch1.addConstraint(Sketcher.Constraint("DistanceX", -1, 1, 57, 3, Q("77.49 mm")))
sketch1.addConstraint(Sketcher.Constraint("DistanceY", -1, 1, 57, 3, Q("24.36 mm")))
sketch1.addConstraint(Sketcher.Constraint("DistanceY", -1, 1, 43, 2, Q("6.18 mm")))
sketch1.addConstraint(Sketcher.Constraint("Distance", 0, Q("2.547 mm")))
sketch1.addConstraint(Sketcher.Constraint("DistanceY", 6, 1, 6, 2, Q("10.6935 mm")))
sketch1.setExpression("Constraints[143]", "Params.sketch1_diameter")
sketch1.setExpression("Constraints[144]", "Params.sketch1_diameter2")
sketch1.setExpression("Constraints[145]", "Params.sketch1_radius")
sketch1.setExpression("Constraints[146]", "Params.sketch1_height")
sketch1.setExpression("Constraints[147]", "Params.sketch1_height2")
pad1 = body.newObject("PartDesign::Pad", "Pad")
pad1.Profile = sketch1
pad1.setExpression("Length", "Params.pad1_length")
doc.recompute()

fillet = body.newObject("PartDesign::Fillet", "Fillet")
fillet.Base = (pad1, edges_at(pad1, [
    (-20.5, 11.294, 1),
    (-20.5, -8.739, 1),
    (-3.226, -16, 1),
    (30.4, 16, 1),
    (40, 30.4, 1),
    (82.75, 30.4, 1),
    (82.75, 21.706, 1),
    (88.5, 18.387, 1),
    (88.5, 12.613, 1),
    (82.75, 9.293, 1),
    (82.75, -1.4, 1),
    (40, -1.4, 1),
    (30.4, -16, 1),
    (-21.773, 13.5, 1),
    (-18.887, 18.5, 1),
    (-13.113, 18.5, 1),
    (-11.67, 16, 1),
]))
fillet.setExpression("Radius", "Params.fillet_radius")
doc.recompute()

fillet2 = body.newObject("PartDesign::Fillet", "Fillet001")
fillet2.Base = (fillet, edges_at(fillet, [
    (6.273, 11.1, 1),
    (6.273, -11.1, 1),
    (32, 9.386, 1),
    (32, -4.466, 1),
    (39, 6.18, 1),
    (39, 19.886, 1),
    (28, -11.1, 1),
    (28, 11.1, 1),
    (49, 25.4, 1),
    (49, 3.6, 1),
    (73.5, 3.6, 1),
    (73.5, 25.4, 1),
]))
fillet2.setExpression("Radius", "Params.fillet2_radius")

doc.recompute()
